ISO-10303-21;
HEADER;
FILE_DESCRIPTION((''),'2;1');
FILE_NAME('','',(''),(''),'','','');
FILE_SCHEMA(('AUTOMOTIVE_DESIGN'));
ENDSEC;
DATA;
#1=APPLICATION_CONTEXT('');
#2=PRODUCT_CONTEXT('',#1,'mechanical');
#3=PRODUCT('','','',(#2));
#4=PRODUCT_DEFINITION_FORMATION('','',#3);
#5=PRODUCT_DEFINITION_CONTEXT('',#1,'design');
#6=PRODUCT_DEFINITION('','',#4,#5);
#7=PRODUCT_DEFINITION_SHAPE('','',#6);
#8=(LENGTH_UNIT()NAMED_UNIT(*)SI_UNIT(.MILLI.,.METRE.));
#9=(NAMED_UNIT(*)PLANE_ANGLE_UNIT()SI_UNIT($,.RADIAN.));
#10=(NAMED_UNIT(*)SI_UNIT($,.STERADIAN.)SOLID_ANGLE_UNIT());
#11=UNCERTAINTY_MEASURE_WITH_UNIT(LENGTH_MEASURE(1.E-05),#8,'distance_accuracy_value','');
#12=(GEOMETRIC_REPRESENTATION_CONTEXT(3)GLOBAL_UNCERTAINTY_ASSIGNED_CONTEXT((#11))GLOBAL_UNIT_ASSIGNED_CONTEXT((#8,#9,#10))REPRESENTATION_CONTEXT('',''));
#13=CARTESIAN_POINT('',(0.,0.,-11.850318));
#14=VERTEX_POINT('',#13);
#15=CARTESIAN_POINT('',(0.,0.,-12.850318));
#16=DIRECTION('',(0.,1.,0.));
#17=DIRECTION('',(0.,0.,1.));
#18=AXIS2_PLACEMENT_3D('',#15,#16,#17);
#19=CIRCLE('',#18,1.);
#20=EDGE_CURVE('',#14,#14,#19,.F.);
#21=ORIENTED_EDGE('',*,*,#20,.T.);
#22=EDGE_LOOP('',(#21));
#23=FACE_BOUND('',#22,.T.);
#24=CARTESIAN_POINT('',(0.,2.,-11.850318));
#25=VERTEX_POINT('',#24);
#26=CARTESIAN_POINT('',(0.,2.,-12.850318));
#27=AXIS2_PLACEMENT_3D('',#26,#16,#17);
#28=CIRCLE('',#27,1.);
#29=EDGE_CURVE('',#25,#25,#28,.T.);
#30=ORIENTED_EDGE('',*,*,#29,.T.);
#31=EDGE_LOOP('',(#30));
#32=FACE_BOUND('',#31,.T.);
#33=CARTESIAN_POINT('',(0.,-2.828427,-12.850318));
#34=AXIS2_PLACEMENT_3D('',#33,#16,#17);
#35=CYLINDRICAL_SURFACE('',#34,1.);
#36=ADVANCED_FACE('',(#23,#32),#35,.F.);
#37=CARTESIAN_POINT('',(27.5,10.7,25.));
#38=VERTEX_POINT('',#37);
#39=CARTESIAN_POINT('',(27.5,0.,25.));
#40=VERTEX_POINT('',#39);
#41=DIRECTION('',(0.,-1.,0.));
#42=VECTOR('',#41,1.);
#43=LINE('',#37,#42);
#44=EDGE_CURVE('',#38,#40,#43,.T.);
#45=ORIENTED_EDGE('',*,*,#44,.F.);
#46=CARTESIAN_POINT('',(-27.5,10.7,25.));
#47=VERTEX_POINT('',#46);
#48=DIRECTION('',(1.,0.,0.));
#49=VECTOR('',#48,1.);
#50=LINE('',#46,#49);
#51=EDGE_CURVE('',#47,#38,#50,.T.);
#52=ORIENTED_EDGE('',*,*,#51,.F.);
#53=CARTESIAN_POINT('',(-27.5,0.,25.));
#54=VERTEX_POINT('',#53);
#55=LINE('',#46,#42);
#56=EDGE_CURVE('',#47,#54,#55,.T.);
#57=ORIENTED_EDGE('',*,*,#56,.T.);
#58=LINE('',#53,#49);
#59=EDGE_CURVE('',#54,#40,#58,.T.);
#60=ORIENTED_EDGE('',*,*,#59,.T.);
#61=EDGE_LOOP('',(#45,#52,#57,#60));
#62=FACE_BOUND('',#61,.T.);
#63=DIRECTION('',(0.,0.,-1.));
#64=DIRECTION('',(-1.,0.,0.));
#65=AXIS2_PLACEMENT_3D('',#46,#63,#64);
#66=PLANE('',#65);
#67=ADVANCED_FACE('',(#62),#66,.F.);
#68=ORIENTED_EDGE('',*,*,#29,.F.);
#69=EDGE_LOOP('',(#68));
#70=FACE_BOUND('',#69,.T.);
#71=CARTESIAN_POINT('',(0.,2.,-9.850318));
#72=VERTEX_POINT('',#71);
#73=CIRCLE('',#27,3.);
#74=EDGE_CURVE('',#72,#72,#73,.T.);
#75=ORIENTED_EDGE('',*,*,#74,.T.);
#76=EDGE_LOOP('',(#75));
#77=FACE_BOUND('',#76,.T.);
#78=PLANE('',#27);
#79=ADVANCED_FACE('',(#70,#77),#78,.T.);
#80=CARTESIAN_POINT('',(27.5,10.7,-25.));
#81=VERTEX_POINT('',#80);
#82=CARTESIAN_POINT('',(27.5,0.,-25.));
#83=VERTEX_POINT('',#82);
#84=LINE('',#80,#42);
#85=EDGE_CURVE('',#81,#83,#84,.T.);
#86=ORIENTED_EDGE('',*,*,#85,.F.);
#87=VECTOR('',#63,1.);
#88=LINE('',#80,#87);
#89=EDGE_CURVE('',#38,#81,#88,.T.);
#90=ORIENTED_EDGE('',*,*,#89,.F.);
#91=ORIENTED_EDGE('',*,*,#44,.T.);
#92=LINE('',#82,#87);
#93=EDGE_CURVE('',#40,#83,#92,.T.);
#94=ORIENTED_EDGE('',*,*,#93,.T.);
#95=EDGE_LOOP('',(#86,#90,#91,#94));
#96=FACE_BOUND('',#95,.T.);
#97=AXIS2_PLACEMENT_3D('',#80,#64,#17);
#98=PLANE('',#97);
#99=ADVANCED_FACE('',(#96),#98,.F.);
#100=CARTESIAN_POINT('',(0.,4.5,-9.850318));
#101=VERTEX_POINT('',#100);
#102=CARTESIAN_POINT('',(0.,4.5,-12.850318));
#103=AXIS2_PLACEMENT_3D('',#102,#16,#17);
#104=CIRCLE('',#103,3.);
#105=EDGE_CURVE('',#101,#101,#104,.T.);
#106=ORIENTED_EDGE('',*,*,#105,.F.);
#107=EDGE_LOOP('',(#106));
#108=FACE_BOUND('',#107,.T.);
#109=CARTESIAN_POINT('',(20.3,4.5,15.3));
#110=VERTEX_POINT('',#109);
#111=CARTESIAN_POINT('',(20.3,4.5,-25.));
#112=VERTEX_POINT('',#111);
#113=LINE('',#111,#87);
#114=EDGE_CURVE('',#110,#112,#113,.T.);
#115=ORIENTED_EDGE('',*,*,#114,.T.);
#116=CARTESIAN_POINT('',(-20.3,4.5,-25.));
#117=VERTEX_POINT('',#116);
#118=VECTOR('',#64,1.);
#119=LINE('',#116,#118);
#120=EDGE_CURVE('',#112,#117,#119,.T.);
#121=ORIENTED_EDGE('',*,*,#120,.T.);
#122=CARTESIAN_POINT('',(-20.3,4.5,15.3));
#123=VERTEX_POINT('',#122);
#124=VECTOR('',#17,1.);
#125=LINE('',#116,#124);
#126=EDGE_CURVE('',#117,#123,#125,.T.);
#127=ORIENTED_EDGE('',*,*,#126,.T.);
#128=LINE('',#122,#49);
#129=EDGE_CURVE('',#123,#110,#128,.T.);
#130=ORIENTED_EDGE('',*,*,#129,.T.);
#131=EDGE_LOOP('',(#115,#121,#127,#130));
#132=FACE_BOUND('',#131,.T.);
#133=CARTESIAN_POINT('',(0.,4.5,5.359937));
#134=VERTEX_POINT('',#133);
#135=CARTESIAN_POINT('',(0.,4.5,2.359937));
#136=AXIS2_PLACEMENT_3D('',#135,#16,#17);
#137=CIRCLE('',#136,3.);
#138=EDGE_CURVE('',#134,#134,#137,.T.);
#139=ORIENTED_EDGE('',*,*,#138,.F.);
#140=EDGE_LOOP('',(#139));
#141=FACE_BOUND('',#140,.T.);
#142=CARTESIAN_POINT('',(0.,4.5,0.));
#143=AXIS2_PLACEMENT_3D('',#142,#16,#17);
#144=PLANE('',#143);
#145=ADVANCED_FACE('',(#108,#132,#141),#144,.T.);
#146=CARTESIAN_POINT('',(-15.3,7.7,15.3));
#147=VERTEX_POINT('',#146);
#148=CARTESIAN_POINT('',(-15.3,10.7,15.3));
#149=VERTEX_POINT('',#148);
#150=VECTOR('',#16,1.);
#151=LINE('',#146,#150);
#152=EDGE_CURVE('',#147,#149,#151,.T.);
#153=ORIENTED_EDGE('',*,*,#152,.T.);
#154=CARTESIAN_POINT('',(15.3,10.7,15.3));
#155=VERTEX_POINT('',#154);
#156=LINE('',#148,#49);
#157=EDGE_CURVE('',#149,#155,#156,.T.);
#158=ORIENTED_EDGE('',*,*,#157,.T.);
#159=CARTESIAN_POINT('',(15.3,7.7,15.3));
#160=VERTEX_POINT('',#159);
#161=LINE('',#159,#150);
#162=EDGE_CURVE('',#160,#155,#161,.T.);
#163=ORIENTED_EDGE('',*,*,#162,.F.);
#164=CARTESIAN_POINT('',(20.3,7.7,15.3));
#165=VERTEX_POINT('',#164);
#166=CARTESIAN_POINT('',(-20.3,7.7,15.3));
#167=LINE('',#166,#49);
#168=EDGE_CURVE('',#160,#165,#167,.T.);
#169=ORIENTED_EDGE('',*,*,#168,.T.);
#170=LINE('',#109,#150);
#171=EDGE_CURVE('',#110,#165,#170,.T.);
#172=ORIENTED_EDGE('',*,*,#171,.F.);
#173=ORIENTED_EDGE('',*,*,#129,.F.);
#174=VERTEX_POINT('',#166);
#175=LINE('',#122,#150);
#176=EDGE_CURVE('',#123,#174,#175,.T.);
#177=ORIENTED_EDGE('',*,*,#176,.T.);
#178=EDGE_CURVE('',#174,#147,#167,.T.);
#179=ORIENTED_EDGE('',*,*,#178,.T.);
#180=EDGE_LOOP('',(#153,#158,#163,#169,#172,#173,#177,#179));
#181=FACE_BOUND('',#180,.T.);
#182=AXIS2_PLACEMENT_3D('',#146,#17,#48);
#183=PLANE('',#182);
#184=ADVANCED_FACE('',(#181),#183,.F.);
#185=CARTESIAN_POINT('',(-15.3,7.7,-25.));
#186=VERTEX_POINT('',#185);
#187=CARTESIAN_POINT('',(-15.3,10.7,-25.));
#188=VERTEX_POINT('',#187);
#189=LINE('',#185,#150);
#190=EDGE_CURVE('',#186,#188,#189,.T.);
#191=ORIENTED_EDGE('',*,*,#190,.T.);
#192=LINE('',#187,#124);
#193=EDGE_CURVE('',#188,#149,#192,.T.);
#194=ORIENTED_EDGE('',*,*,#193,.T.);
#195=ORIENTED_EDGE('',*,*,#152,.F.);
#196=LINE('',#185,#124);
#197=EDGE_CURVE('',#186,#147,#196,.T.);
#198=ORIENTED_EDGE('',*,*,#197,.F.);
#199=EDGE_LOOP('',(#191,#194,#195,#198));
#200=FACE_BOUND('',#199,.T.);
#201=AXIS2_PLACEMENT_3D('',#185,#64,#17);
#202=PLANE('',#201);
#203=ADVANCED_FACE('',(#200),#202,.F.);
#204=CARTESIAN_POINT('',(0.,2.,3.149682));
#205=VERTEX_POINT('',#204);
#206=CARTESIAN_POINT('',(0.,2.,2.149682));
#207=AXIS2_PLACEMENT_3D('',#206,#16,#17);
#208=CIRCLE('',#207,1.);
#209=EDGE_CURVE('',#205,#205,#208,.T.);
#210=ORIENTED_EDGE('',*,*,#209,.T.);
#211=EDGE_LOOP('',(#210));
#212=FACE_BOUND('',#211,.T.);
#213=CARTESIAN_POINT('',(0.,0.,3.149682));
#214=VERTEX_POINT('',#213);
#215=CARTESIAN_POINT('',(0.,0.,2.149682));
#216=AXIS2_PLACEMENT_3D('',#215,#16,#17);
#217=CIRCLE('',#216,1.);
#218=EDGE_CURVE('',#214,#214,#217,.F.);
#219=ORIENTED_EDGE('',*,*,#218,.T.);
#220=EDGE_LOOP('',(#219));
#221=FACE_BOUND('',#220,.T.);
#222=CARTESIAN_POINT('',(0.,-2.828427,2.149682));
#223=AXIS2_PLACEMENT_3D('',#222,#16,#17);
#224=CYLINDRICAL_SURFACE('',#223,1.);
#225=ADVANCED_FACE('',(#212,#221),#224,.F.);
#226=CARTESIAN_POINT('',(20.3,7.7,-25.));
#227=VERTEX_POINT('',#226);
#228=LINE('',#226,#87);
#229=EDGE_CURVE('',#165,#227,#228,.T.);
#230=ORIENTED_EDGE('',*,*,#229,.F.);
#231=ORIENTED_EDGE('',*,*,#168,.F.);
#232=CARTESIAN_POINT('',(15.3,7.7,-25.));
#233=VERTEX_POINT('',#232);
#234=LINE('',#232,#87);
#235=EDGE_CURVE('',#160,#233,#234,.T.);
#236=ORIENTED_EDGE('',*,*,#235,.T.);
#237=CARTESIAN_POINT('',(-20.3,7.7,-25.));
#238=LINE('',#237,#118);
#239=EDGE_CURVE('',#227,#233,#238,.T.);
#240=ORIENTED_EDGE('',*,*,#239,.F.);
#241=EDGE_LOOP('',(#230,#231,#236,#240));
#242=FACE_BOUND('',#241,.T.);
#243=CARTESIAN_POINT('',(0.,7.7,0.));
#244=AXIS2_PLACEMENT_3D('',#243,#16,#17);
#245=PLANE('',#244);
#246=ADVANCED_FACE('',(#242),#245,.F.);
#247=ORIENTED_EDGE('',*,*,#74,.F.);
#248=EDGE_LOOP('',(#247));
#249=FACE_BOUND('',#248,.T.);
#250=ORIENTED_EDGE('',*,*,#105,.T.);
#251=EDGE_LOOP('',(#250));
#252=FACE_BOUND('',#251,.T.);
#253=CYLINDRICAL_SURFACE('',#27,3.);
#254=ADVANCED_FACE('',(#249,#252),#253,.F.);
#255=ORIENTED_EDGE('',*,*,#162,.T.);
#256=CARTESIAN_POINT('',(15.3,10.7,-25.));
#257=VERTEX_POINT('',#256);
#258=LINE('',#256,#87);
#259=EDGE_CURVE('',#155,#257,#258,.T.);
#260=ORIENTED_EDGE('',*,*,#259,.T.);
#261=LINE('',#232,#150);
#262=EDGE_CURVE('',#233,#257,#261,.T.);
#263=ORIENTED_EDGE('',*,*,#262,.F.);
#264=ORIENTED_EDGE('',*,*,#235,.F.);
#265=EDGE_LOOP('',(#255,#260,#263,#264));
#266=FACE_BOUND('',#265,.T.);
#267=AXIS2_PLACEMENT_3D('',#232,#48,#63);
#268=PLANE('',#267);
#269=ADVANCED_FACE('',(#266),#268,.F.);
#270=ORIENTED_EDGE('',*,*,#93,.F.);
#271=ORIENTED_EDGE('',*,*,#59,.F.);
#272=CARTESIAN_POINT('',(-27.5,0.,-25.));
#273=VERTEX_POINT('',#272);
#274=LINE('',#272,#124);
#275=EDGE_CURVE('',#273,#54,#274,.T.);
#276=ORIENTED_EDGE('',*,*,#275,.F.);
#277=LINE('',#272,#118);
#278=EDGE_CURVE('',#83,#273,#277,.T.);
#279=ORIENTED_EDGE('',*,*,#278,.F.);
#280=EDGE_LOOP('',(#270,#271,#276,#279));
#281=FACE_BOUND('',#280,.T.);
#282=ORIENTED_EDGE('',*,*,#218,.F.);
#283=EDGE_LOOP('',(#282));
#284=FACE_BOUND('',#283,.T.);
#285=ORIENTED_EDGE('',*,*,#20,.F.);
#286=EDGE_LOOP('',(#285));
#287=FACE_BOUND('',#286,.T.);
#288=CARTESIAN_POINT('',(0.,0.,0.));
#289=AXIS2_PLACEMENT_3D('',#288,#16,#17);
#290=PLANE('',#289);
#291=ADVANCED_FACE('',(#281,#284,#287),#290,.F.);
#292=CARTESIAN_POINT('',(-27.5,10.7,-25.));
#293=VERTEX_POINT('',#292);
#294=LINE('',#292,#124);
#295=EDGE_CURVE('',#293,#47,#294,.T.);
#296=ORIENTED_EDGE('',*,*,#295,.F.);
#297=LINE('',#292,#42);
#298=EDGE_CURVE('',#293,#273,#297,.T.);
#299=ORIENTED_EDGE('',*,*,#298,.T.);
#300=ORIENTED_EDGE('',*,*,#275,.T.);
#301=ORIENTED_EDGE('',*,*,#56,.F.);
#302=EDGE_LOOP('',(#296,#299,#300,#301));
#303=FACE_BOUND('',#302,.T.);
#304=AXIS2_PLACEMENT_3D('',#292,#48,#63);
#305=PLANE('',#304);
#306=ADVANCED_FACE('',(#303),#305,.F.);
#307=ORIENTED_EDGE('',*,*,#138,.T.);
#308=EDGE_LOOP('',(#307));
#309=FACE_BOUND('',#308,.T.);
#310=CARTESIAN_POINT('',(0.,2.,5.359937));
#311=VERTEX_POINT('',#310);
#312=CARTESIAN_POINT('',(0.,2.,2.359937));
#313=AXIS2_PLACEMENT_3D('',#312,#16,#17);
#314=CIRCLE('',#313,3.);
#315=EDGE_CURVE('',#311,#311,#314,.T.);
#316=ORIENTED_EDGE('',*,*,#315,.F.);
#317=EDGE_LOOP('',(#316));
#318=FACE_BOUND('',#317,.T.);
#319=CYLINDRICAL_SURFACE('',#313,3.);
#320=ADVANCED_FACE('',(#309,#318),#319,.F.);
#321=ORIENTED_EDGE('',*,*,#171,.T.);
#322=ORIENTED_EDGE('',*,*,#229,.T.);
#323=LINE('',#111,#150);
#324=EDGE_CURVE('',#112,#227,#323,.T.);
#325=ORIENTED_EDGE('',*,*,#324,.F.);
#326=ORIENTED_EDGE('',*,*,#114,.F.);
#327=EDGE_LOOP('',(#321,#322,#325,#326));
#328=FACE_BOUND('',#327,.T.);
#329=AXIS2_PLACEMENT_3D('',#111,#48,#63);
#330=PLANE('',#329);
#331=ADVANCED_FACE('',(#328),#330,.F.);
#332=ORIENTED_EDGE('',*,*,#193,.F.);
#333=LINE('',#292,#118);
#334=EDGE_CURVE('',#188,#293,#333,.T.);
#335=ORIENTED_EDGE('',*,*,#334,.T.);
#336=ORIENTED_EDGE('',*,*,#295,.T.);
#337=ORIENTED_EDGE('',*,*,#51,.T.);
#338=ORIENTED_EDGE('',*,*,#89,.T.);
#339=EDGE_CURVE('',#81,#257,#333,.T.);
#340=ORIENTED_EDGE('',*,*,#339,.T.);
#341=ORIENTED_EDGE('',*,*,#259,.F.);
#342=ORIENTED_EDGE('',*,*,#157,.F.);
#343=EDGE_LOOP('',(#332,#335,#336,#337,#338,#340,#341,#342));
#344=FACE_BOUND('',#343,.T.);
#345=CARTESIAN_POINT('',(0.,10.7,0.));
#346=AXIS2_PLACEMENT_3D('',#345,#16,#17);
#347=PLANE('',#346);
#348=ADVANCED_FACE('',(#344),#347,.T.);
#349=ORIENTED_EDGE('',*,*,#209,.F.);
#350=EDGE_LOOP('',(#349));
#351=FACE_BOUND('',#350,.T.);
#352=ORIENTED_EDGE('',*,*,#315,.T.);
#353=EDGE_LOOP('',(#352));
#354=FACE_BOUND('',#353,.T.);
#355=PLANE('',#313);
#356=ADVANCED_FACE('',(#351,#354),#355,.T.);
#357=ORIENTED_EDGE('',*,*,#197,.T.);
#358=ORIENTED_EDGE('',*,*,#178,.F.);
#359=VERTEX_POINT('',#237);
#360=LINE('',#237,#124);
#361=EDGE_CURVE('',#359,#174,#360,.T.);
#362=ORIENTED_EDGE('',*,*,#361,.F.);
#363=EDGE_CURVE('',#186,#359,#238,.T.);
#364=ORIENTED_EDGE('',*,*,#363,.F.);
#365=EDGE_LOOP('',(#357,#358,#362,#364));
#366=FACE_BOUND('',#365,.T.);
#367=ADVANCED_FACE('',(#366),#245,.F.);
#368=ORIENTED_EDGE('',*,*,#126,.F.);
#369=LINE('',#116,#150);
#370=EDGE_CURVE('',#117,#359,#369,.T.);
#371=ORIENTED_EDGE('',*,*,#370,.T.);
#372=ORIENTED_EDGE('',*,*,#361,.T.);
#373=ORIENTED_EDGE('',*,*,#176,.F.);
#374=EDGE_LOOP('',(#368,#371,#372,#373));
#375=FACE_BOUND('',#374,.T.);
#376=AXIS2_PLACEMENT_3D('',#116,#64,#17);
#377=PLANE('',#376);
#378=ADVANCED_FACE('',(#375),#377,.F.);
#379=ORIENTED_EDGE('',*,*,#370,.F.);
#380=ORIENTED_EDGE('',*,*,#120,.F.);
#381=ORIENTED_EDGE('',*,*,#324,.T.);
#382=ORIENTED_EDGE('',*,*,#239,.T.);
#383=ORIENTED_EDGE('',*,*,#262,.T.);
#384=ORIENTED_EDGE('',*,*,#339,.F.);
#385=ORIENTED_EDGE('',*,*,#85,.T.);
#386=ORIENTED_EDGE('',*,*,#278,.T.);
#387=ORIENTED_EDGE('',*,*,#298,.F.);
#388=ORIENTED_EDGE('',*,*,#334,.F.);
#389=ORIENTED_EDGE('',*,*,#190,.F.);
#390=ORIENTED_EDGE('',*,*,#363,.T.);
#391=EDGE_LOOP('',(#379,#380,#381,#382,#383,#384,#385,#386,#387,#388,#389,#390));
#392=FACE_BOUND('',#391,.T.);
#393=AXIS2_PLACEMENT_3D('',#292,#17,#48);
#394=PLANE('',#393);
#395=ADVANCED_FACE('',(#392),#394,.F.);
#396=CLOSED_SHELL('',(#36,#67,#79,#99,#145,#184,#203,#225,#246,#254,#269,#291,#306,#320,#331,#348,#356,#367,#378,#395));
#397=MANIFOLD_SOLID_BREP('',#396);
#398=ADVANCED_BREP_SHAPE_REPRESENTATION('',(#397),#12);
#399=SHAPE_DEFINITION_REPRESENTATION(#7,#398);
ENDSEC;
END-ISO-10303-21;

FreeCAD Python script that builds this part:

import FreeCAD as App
import Part
import Sketcher
Q = App.Units.Quantity

doc = App.newDocument("Part")
body = doc.addObject("PartDesign::Body", "Body")

# Sketch on XZ plane
sketch1 = doc.addObject("Sketcher::SketchObject", "Sketch")
body.addObject(sketch1)
sketch1.AttachmentSupport = (doc.XZ_Plane, [""])
sketch1.MapMode = "FlatFace"
sketch1.addGeometry([
    Part.LineSegment(App.Vector(-28, -25, 0), App.Vector(-28, 25, 0)),
    Part.LineSegment(App.Vector(-28, 25, 0), App.Vector(28, 25, 0)),
    Part.LineSegment(App.Vector(28, 25, 0), App.Vector(28, -25, 0)),
    Part.LineSegment(App.Vector(28, -25, 0), App.Vector(-28, -25, 0)),
], False)
sketch1.addConstraint([
    Sketcher.Constraint("Coincident", 0, 2, 1, 1),
    Sketcher.Constraint("Coincident", 1, 2, 2, 1),
    Sketcher.Constraint("Coincident", 2, 2, 3, 1),
    Sketcher.Constraint("Coincident", 3, 2, 0, 1),
    Sketcher.Constraint("Vertical", 0),
    Sketcher.Constraint("Horizontal", 1),
    Sketcher.Constraint("Vertical", 2),
    Sketcher.Constraint("Horizontal", 3),
    Sketcher.Constraint("Symmetric", 0, 2, 2, 2, -1, 1),
    Sketcher.Constraint("DistanceX", 1, 1, 1, 2, Q("55 mm")),
    Sketcher.Constraint("DistanceY", 0, 1, 0, 2, Q("50 mm")),
])
pad1 = doc.addObject("PartDesign::Pad", "Pad")
body.addObject(pad1)
pad1.Profile = sketch1
pad1.Length = 10.7
pad1.Reversed = True

# Sketch on XZ plane
sketch2 = doc.addObject("Sketcher::SketchObject", "Sketch001")
body.addObject(sketch2)
sketch2.AttachmentSupport = (doc.XZ_Plane, [""])
sketch2.MapMode = "FlatFace"
sketch2.AttachmentOffset = App.Placement(App.Vector(0, 0, -10.7), App.Rotation())
sketch2.addGeometry([
    Part.LineSegment(App.Vector(-15, -25, 0), App.Vector(-15, 15, 0)),
    Part.LineSegment(App.Vector(-15, 15, 0), App.Vector(15, 15, 0)),
    Part.LineSegment(App.Vector(15, 15, 0), App.Vector(15, -25, 0)),
    Part.LineSegment(App.Vector(15, -25, 0), App.Vector(-15, -25, 0)),
], False)
sketch2.addConstraint([
    Sketcher.Constraint("Coincident", 0, 2, 1, 1),
    Sketcher.Constraint("Coincident", 1, 2, 2, 1),
    Sketcher.Constraint("Coincident", 2, 2, 3, 1),
    Sketcher.Constraint("Coincident", 3, 2, 0, 1),
    Sketcher.Constraint("Vertical", 0),
    Sketcher.Constraint("Horizontal", 1),
    Sketcher.Constraint("Vertical", 2),
    Sketcher.Constraint("Horizontal", 3),
    Sketcher.Constraint("DistanceX", 1, 1, 1, 2, Q("30.6 mm")),
    Sketcher.Constraint("DistanceY", 0, 1, 0, 2, Q("40.3 mm")),
    Sketcher.Constraint("DistanceY", 2, 2, -1, 1, Q("25 mm")),
    Sketcher.Constraint("DistanceX", 0, 2, -1, 1, Q("15.3 mm")),
])
pocket1 = doc.addObject("PartDesign::Pocket", "Pocket")
body.addObject(pocket1)
pocket1.Profile = sketch2
pocket1.Length = 3
pocket1.Reversed = True

# Sketch on XZ plane
sketch3 = doc.addObject("Sketcher::SketchObject", "Sketch002")
body.addObject(sketch3)
sketch3.AttachmentSupport = (doc.XZ_Plane, [""])
sketch3.MapMode = "FlatFace"
sketch3.AttachmentOffset = App.Placement(App.Vector(0, 0, -7.7), App.Rotation())
sketch3.addGeometry([
    Part.LineSegment(App.Vector(-20, -25, 0), App.Vector(-20, 15, 0)),
    Part.LineSegment(App.Vector(-20, 15, 0), App.Vector(20, 15, 0)),
    Part.LineSegment(App.Vector(20, 15, 0), App.Vector(20, -25, 0)),
    Part.LineSegment(App.Vector(20, -25, 0), App.Vector(-20, -25, 0)),
], False)
sketch3.addConstraint([
    Sketcher.Constraint("Coincident", 0, 2, 1, 1),
    Sketcher.Constraint("Coincident", 1, 2, 2, 1),
    Sketcher.Constraint("Coincident", 2, 2, 3, 1),
    Sketcher.Constraint("Coincident", 3, 2, 0, 1),
    Sketcher.Constraint("Vertical", 0),
    Sketcher.Constraint("Horizontal", 1),
    Sketcher.Constraint("Vertical", 2),
    Sketcher.Constraint("Horizontal", 3),
    Sketcher.Constraint("DistanceX", 1, 1, 1, 2, Q("40.6 mm")),
    Sketcher.Constraint("DistanceY", 0, 1, 0, 2, Q("40.3 mm")),
    Sketcher.Constraint("DistanceY", 2, 2, -1, 1, Q("25 mm")),
    Sketcher.Constraint("DistanceX", 0, 2, -1, 1, Q("20.3 mm")),
])
pocket2 = doc.addObject("PartDesign::Pocket", "Pocket001")
body.addObject(pocket2)
pocket2.Profile = sketch3
pocket2.Length = 3.2
pocket2.Reversed = True

# Sketch on XZ plane
sketch4 = doc.addObject("Sketcher::SketchObject", "Sketch003")
body.addObject(sketch4)
sketch4.AttachmentSupport = (doc.XZ_Plane, [""])
sketch4.MapMode = "FlatFace"
sketch4.AttachmentOffset = App.Placement(App.Vector(0, 0, -4.5), App.Rotation())
sketch4.addGeometry([
    Part.Circle(App.Vector(0, -12.9, 0), App.Vector(0, 0, 1), 3),
    Part.Circle(App.Vector(0, 2.4, 0), App.Vector(0, 0, 1), 3),
], False)
sketch4.addConstraint([
    Sketcher.Constraint("Equal", 0, 1),
    Sketcher.Constraint("PointOnObject", 0, 3, -2),
    Sketcher.Constraint("PointOnObject", 1, 3, -2),
    Sketcher.Constraint("Diameter", 0, Q("6 mm")),
    Sketcher.Constraint("DistanceY", 0, 3, -1, 1, Q("12.850318 mm")),
    Sketcher.Constraint("DistanceY", -1, 1, 1, 3, Q("2.359937 mm")),
])
pocket3 = doc.addObject("PartDesign::Pocket", "Pocket002")
body.addObject(pocket3)
pocket3.Profile = sketch4
pocket3.Length = 2.5
pocket3.Reversed = True

# Sketch on XZ plane
sketch5 = doc.addObject("Sketcher::SketchObject", "Sketch004")
body.addObject(sketch5)
sketch5.AttachmentSupport = (doc.XZ_Plane, [""])
sketch5.MapMode = "FlatFace"
sketch5.AttachmentOffset = App.Placement(App.Vector(0, 0, -2), App.Rotation())
sketch5.addGeometry([
    Part.Circle(App.Vector(0, -12.9, 0), App.Vector(0, 0, 1), 1),
    Part.Circle(App.Vector(0, 2.1, 0), App.Vector(0, 0, 1), 1),
], False)
sketch5.addConstraint([
    Sketcher.Constraint("Equal", 0, 1),
    Sketcher.Constraint("PointOnObject", 0, 3, -2),
    Sketcher.Constraint("PointOnObject", 1, 3, -2),
    Sketcher.Constraint("Diameter", 0, Q("2 mm")),
    Sketcher.Constraint("DistanceY", 0, 3, 1, 3, Q("15 mm")),
    Sketcher.Constraint("DistanceY", 0, 3, -1, 1, Q("12.850318 mm")),
])
pocket4 = doc.addObject("PartDesign::Pocket", "Pocket003")
body.addObject(pocket4)
pocket4.Profile = sketch5
pocket4.Length = 2
pocket4.Reversed = True

doc.recompute()
